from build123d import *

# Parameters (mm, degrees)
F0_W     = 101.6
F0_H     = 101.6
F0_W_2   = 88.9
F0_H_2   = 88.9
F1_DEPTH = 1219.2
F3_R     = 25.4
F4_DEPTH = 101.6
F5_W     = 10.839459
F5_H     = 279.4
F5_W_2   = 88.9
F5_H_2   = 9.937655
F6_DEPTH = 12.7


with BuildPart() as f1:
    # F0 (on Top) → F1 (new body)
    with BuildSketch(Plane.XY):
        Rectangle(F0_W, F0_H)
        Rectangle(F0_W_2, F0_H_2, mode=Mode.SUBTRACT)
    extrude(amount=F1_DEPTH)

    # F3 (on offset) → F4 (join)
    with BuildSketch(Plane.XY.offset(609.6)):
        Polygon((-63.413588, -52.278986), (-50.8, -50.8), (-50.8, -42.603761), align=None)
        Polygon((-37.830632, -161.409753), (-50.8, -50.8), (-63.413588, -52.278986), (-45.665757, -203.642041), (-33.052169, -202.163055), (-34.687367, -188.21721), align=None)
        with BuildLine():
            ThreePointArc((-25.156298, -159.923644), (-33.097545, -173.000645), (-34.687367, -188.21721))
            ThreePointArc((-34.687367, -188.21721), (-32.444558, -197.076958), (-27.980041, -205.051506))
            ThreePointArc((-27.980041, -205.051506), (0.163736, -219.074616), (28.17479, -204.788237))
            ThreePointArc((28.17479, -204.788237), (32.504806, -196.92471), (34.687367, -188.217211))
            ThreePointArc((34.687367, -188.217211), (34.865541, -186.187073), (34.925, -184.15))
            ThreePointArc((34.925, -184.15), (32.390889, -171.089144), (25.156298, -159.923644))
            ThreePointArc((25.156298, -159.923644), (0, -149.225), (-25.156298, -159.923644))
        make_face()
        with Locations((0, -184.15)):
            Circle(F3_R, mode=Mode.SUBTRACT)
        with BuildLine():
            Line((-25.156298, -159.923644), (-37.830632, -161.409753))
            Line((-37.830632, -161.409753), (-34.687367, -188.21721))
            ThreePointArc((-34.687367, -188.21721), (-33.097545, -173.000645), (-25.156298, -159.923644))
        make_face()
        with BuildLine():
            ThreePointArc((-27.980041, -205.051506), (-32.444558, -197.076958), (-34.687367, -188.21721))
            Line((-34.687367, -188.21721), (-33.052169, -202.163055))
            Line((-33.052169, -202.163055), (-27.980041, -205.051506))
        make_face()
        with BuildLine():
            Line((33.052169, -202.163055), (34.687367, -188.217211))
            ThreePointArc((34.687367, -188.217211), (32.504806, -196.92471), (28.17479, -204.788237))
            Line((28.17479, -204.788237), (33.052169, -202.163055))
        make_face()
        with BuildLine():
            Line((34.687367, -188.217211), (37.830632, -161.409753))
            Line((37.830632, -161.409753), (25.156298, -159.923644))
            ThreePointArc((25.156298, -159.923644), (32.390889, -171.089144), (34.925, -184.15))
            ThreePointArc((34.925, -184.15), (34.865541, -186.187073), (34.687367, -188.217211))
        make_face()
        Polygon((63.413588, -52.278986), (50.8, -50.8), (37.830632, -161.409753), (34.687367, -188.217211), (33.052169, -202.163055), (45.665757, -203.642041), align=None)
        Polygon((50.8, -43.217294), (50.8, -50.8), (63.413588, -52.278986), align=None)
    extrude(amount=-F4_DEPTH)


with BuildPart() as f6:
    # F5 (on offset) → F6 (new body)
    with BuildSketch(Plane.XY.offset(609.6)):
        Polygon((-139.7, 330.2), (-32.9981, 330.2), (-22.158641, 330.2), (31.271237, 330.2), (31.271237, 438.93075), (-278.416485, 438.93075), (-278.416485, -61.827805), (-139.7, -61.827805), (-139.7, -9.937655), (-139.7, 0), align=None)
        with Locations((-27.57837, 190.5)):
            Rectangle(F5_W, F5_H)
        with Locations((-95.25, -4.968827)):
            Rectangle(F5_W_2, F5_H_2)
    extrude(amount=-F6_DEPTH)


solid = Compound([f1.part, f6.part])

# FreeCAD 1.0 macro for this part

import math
import FreeCAD as App
import Part
import Sketcher
from FreeCAD import Vector
Q = App.Units.Quantity


def add_polygon(sketch, points):
    """Adds a closed chain of lines whose ends are joined by coincident constraints."""
    first, n = sketch.GeometryCount, len(points)
    for a, b in zip(points, points[1:] + points[:1]):
        sketch.addGeometry(Part.LineSegment(App.Vector(*a, 0), App.Vector(*b, 0)), False)
    for i in range(n):
        sketch.addConstraint(Sketcher.Constraint("Coincident", first + i, 2, first + (i + 1) % n, 1))

doc = App.newDocument("Part")
params = doc.addObject("Spreadsheet::Sheet", "Params")
for row, (alias, value) in enumerate([
    ("sketch1_width", "4 in"),
    ("sketch1_width2", "3.5 in"),
    ("pad1_length", "48 in"),
    ("sketch2_diameter", "2 in"),
    ("sketch2_length", "6 in"),
    ("sketch2_radius", "1.375 in"),
    ("sketch2_length2", "0.5 in"),
    ("pad2_length", "4 in"),
    ("sketch3_height", "11 in"),
    ("sketch3_height2", "13 in"),
    ("sketch3_width", "3.5 in"),
    ("pad3_length", "0.5 in"),
], start=1):
    params.set(f"A{row}", alias)
    params.set(f"B{row}", "=" + value)
    params.setAlias(f"B{row}", alias)

body = doc.addObject("PartDesign::Body", "Body")

sketch1 = body.newObject("Sketcher::SketchObject", "Sketch")
sketch1.AttachmentSupport = (doc.getObject("XY_Plane"), [""])
sketch1.MapMode = "FlatFace"
add_polygon(sketch1, [(-50.8, 50.8), (-50.8, -50.8), (50.8, -50.8), (50.8, 50.8)])
add_polygon(sketch1, [(44.45, -44.45), (-44.45, -44.45), (-44.45, 44.45), (44.45, 44.45)])
sketch1.addConstraint(Sketcher.Constraint("Vertical", 0))
sketch1.addConstraint(Sketcher.Constraint("Horizontal", 1))
sketch1.addConstraint(Sketcher.Constraint("Vertical", 2))
sketch1.addConstraint(Sketcher.Constraint("Horizontal", 3))
sketch1.addConstraint(Sketcher.Constraint("Horizontal", 4))
sketch1.addConstraint(Sketcher.Constraint("Vertical", 5))
sketch1.addConstraint(Sketcher.Constraint("Horizontal", 6))
sketch1.addConstraint(Sketcher.Constraint("Vertical", 7))
sketch1.addConstraint(Sketcher.Constraint("Symmetric", 0, 2, 2, 2, -1, 1))
sketch1.addConstraint(Sketcher.Constraint("Symmetric", 4, 2, 6, 2, -1, 1))
sketch1.addConstraint(Sketcher.Constraint("Equal", 3, 0))
sketch1.addConstraint(Sketcher.Constraint("Equal", 6, 5))
sketch1.addConstraint(Sketcher.Constraint("DistanceX", 1, 1, 1, 2, Q("4 in")))
sketch1.addConstraint(Sketcher.Constraint("DistanceX", 4, 2, 4, 1, Q("3.5 in")))
sketch1.setExpression("Constraints[20]", "Params.sketch1_width")
sketch1.setExpression("Constraints[21]", "Params.sketch1_width2")
pad1 = body.newObject("PartDesign::Pad", "Pad")
pad1.Profile = sketch1
pad1.setExpression("Length", "Params.pad1_length")

sketch2 = body.newObject("Sketcher::SketchObject", "Sketch001")
sketch2.AttachmentSupport = (doc.getObject("XY_Plane"), [""])
sketch2.MapMode = "FlatFace"
sketch2.AttachmentOffset = App.Placement(Vector(0, 0, 24 * 25.4), App.Rotation())
sketch2.addGeometry(Part.LineSegment(Vector(-50.8, -50.8, 0), Vector(-50.8, -42.603761, 0)), False)
sketch2.addGeometry(Part.LineSegment(Vector(-50.8, -42.603761, 0), Vector(-63.413588, -52.278986, 0)), False)
sketch2.addGeometry(Part.LineSegment(Vector(-63.413588, -52.278986, 0), Vector(-45.665757, -203.642041, 0)), False)
sketch2.addGeometry(Part.LineSegment(Vector(-45.665757, -203.642041, 0), Vector(-33.052169, -202.163055, 0)), False)
sketch2.addGeometry(Part.LineSegment(Vector(-33.052169, -202.163055, 0), Vector(-27.980041, -205.051506, 0)), False)
sketch2.addGeometry(Part.ArcOfCircle(Part.Circle(Vector(0, -184.149999, 0), Vector(0, 0, 1), 34.925001), math.radians(-143.239722), math.radians(-36.223046)), False)
sketch2.addGeometry(Part.LineSegment(Vector(28.17479, -204.788237, 0), Vector(33.052169, -202.163055, 0)), False)
sketch2.addGeometry(Part.LineSegment(Vector(33.052169, -202.163055, 0), Vector(45.665757, -203.642041, 0)), False)
sketch2.addGeometry(Part.LineSegment(Vector(45.665757, -203.642041, 0), Vector(63.413588, -52.278986, 0)), False)
sketch2.addGeometry(Part.LineSegment(Vector(63.413588, -52.278986, 0), Vector(50.8, -43.217294, 0)), False)
sketch2.addGeometry(Part.LineSegment(Vector(50.8, -43.217294, 0), Vector(50.8, -50.8, 0)), False)
sketch2.addGeometry(Part.LineSegment(Vector(50.8, -50.8, 0), Vector(37.830632, -161.409753, 0)), False)
sketch2.addGeometry(Part.LineSegment(Vector(37.830632, -161.409753, 0), Vector(25.156298, -159.923644, 0)), False)
sketch2.addGeometry(Part.ArcOfCircle(Part.Circle(Vector(0, -184.150001, 0), Vector(0, 0, 1), 34.925001), math.radians(43.921172), math.radians(136.078828)), False)
sketch2.addGeometry(Part.LineSegment(Vector(-25.156298, -159.923644, 0), Vector(-37.830632, -161.409753, 0)), False)
sketch2.addGeometry(Part.LineSegment(Vector(-37.830632, -161.409753, 0), Vector(-50.8, -50.8, 0)), False)
sketch2.addGeometry(Part.Circle(Vector(0, -184.15, 0), Vector(0, 0, 1), 25.4), False)
sketch2.addConstraint(Sketcher.Constraint("Coincident", 0, 2, 1, 1))
sketch2.addConstraint(Sketcher.Constraint("Coincident", 1, 2, 2, 1))
sketch2.addConstraint(Sketcher.Constraint("Coincident", 2, 2, 3, 1))
sketch2.addConstraint(Sketcher.Constraint("Coincident", 3, 2, 4, 1))
sketch2.addConstraint(Sketcher.Constraint("Coincident", 4, 2, 5, 1))
sketch2.addConstraint(Sketcher.Constraint("Coincident", 5, 2, 6, 1))
sketch2.addConstraint(Sketcher.Constraint("Coincident", 6, 2, 7, 1))
sketch2.addConstraint(Sketcher.Constraint("Coincident", 7, 2, 8, 1))
sketch2.addConstraint(Sketcher.Constraint("Coincident", 8, 2, 9, 1))
sketch2.addConstraint(Sketcher.Constraint("Coincident", 9, 2, 10, 1))
sketch2.addConstraint(Sketcher.Constraint("Coincident", 10, 2, 11, 1))
sketch2.addConstraint(Sketcher.Constraint("Coincident", 11, 2, 12, 1))
sketch2.addConstraint(Sketcher.Constraint("Coincident", 12, 2, 13, 1))
sketch2.addConstraint(Sketcher.Constraint("Coincident", 13, 2, 14, 1))
sketch2.addConstraint(Sketcher.Constraint("Coincident", 14, 2, 15, 1))
sketch2.addConstraint(Sketcher.Constraint("Coincident", 15, 2, 0, 1))
sketch2.addConstraint(Sketcher.Constraint("Vertical", 0))
sketch2.addConstraint(Sketcher.Constraint("Vertical", 10))
sketch2.addConstraint(Sketcher.Constraint("Coincident", 13, 3, 5, 3))
sketch2.addConstraint(Sketcher.Constraint("Coincident", 16, 3, 5, 3))
sketch2.addConstraint(Sketcher.Constraint("Equal", 5, 13))
sketch2.addConstraint(Sketcher.Constraint("Symmetric", 3, 2, 6, 2, -2))
sketch2.addConstraint(Sketcher.Constraint("Symmetric", 2, 2, 7, 2, -2))
sketch2.addConstraint(Sketcher.Constraint("Symmetric", 1, 2, 8, 2, -2))
sketch2.addConstraint(Sketcher.Constraint("Symmetric", 12, 2, 13, 2, -2))
sketch2.addConstraint(Sketcher.Constraint("Symmetric", 11, 2, 14, 2, -2))
sketch2.addConstraint(Sketcher.Constraint("Symmetric", 10, 2, 15, 2, -2))
sketch2.addConstraint(Sketcher.Constraint("Perpendicular", 2, 3))
sketch2.addConstraint(Sketcher.Constraint("Parallel", 8, 11))
sketch2.addConstraint(Sketcher.Constraint("Perpendicular", 11, 12))
sketch2.addConstraint(Sketcher.Constraint("Diameter", 16, Q("2 in")))
sketch2.addConstraint(Sketcher.Constraint("Distance", 2, Q("6 in")))
sketch2.addConstraint(Sketcher.Constraint("DistanceX", 0, 2, -1, 1, Q("2 in")))
sketch2.addConstraint(Sketcher.Constraint("DistanceY", 10, 2, -1, 1, Q("2 in")))
sketch2.addConstraint(Sketcher.Constraint("Radius", 5, Q("1.375 in")))
sketch2.addConstraint(Sketcher.Constraint("Distance", 3, Q("0.5 in")))
sketch2.addConstraint(Sketcher.Constraint("DistanceY", 5, 3, -1, 1, Q("7.25 in")))
sketch2.addConstraint(Sketcher.Constraint("Distance", 4, Q("0.2298 in")))
sketch2.addConstraint(Sketcher.Constraint("DistanceY", 0, 1, 0, 2, 8.196239))
sketch2.addConstraint(Sketcher.Constraint("DistanceX", 5, 3, 12, 2, 25.156298))
sketch2.addConstraint(Sketcher.Constraint("Distance", 6, 5.53899))
sketch2.addConstraint(Sketcher.Constraint("Distance", 11, 111.367509))
sketch2.addConstraint(Sketcher.Constraint("DistanceY", 10, 2, 10, 1, 7.582706))
sketch2.addConstraint(Sketcher.Constraint("DistanceY", 2, 2, -1, 1, 203.642041))
sketch2.addConstraint(Sketcher.Constraint("DistanceX", 3, 2, -1, 1, 33.052169))
sketch2.setExpression("Constraints[30]", "Params.sketch2_diameter")
sketch2.setExpression("Constraints[31]", "Params.sketch2_length")
sketch2.setExpression("Constraints[34]", "Params.sketch2_radius")
sketch2.setExpression("Constraints[35]", "Params.sketch2_length2")
pad2 = body.newObject("PartDesign::Pad", "Pad001")
pad2.Profile = sketch2
pad2.setExpression("Length", "Params.pad2_length")
pad2.Reversed = True
body2 = doc.addObject("PartDesign::Body", "Body001")

sketch3 = body2.newObject("Sketcher::SketchObject", "Sketch002")
sketch3.AttachmentSupport = (doc.getObject("XY_Plane001"), [""])
sketch3.MapMode = "FlatFace"
sketch3.AttachmentOffset = App.Placement(Vector(0, 0, 24 * 25.4), App.Rotation())
add_polygon(sketch3, [(-139.7, 330.2), (-32.9981, 330.2), (-32.9981, 50.8), (-22.158641, 50.8), (-22.158641, 330.2), (31.271237, 330.2), (31.271237, 438.93075), (-278.416485, 438.93075), (-278.416485, -61.827805), (-139.7, -61.827805), (-139.7, -9.937655), (-50.8, -9.937655), (-50.8, 0), (-139.7, 0)])
sketch3.addConstraint(Sketcher.Constraint("Horizontal", 0))
sketch3.addConstraint(Sketcher.Constraint("Vertical", 1))
sketch3.addConstraint(Sketcher.Constraint("Horizontal", 2))
sketch3.addConstraint(Sketcher.Constraint("Vertical", 3))
sketch3.addConstraint(Sketcher.Constraint("Horizontal", 4))
sketch3.addConstraint(Sketcher.Constraint("Vertical", 5))
sketch3.addConstraint(Sketcher.Constraint("Horizontal", 6))
sketch3.addConstraint(Sketcher.Constraint("Vertical", 7))
sketch3.addConstraint(Sketcher.Constraint("Horizontal", 8))
sketch3.addConstraint(Sketcher.Constraint("Vertical", 9))
sketch3.addConstraint(Sketcher.Constraint("Horizontal", 10))
sketch3.addConstraint(Sketcher.Constraint("Vertical", 11))
sketch3.addConstraint(Sketcher.Constraint("Horizontal", 12))
sketch3.addConstraint(Sketcher.Constraint("Vertical", 13))
sketch3.addConstraint(Sketcher.Constraint("PointOnObject", 11, 2, -1))
sketch3.addConstraint(Sketcher.Constraint("Horizontal", 0, 2, 3, 2))
sketch3.addConstraint(Sketcher.Constraint("Vertical", 9, 2, 12, 2))
sketch3.addConstraint(Sketcher.Constraint("DistanceY", 1, 2, 1, 1, Q("11 in")))
sketch3.addConstraint(Sketcher.Constraint("DistanceY", 13, 1, 13, 2, Q("13 in")))
sketch3.addConstraint(Sketcher.Constraint("DistanceX", 10, 1, 10, 2, Q("3.5 in")))
sketch3.addConstraint(Sketcher.Constraint("DistanceX", 10, 2, -1, 1, Q("2 in")))
sketch3.addConstraint(Sketcher.Constraint("DistanceX", 0, 1, 0, 2, 106.7019))
sketch3.addConstraint(Sketcher.Constraint("DistanceX", 2, 1, 2, 2, 10.839459))
sketch3.addConstraint(Sketcher.Constraint("DistanceX", 6, 2, 6, 1, 309.687722))
sketch3.addConstraint(Sketcher.Constraint("DistanceY", 5, 1, 5, 2, 108.73075))
sketch3.addConstraint(Sketcher.Constraint("DistanceY", 9, 1, 9, 2, 51.89015))
sketch3.addConstraint(Sketcher.Constraint("DistanceX", 4, 1, 4, 2, 53.429878))
sketch3.addConstraint(Sketcher.Constraint("DistanceY", 7, 2, 7, 1, 500.758555))
sketch3.setExpression("Constraints[31]", "Params.sketch3_height")
sketch3.setExpression("Constraints[32]", "Params.sketch3_height2")
sketch3.setExpression("Constraints[33]", "Params.sketch3_width")
pad3 = body2.newObject("PartDesign::Pad", "Pad002")
pad3.Profile = sketch3
pad3.setExpression("Length", "Params.pad3_length")
pad3.Reversed = True

doc.recompute()
